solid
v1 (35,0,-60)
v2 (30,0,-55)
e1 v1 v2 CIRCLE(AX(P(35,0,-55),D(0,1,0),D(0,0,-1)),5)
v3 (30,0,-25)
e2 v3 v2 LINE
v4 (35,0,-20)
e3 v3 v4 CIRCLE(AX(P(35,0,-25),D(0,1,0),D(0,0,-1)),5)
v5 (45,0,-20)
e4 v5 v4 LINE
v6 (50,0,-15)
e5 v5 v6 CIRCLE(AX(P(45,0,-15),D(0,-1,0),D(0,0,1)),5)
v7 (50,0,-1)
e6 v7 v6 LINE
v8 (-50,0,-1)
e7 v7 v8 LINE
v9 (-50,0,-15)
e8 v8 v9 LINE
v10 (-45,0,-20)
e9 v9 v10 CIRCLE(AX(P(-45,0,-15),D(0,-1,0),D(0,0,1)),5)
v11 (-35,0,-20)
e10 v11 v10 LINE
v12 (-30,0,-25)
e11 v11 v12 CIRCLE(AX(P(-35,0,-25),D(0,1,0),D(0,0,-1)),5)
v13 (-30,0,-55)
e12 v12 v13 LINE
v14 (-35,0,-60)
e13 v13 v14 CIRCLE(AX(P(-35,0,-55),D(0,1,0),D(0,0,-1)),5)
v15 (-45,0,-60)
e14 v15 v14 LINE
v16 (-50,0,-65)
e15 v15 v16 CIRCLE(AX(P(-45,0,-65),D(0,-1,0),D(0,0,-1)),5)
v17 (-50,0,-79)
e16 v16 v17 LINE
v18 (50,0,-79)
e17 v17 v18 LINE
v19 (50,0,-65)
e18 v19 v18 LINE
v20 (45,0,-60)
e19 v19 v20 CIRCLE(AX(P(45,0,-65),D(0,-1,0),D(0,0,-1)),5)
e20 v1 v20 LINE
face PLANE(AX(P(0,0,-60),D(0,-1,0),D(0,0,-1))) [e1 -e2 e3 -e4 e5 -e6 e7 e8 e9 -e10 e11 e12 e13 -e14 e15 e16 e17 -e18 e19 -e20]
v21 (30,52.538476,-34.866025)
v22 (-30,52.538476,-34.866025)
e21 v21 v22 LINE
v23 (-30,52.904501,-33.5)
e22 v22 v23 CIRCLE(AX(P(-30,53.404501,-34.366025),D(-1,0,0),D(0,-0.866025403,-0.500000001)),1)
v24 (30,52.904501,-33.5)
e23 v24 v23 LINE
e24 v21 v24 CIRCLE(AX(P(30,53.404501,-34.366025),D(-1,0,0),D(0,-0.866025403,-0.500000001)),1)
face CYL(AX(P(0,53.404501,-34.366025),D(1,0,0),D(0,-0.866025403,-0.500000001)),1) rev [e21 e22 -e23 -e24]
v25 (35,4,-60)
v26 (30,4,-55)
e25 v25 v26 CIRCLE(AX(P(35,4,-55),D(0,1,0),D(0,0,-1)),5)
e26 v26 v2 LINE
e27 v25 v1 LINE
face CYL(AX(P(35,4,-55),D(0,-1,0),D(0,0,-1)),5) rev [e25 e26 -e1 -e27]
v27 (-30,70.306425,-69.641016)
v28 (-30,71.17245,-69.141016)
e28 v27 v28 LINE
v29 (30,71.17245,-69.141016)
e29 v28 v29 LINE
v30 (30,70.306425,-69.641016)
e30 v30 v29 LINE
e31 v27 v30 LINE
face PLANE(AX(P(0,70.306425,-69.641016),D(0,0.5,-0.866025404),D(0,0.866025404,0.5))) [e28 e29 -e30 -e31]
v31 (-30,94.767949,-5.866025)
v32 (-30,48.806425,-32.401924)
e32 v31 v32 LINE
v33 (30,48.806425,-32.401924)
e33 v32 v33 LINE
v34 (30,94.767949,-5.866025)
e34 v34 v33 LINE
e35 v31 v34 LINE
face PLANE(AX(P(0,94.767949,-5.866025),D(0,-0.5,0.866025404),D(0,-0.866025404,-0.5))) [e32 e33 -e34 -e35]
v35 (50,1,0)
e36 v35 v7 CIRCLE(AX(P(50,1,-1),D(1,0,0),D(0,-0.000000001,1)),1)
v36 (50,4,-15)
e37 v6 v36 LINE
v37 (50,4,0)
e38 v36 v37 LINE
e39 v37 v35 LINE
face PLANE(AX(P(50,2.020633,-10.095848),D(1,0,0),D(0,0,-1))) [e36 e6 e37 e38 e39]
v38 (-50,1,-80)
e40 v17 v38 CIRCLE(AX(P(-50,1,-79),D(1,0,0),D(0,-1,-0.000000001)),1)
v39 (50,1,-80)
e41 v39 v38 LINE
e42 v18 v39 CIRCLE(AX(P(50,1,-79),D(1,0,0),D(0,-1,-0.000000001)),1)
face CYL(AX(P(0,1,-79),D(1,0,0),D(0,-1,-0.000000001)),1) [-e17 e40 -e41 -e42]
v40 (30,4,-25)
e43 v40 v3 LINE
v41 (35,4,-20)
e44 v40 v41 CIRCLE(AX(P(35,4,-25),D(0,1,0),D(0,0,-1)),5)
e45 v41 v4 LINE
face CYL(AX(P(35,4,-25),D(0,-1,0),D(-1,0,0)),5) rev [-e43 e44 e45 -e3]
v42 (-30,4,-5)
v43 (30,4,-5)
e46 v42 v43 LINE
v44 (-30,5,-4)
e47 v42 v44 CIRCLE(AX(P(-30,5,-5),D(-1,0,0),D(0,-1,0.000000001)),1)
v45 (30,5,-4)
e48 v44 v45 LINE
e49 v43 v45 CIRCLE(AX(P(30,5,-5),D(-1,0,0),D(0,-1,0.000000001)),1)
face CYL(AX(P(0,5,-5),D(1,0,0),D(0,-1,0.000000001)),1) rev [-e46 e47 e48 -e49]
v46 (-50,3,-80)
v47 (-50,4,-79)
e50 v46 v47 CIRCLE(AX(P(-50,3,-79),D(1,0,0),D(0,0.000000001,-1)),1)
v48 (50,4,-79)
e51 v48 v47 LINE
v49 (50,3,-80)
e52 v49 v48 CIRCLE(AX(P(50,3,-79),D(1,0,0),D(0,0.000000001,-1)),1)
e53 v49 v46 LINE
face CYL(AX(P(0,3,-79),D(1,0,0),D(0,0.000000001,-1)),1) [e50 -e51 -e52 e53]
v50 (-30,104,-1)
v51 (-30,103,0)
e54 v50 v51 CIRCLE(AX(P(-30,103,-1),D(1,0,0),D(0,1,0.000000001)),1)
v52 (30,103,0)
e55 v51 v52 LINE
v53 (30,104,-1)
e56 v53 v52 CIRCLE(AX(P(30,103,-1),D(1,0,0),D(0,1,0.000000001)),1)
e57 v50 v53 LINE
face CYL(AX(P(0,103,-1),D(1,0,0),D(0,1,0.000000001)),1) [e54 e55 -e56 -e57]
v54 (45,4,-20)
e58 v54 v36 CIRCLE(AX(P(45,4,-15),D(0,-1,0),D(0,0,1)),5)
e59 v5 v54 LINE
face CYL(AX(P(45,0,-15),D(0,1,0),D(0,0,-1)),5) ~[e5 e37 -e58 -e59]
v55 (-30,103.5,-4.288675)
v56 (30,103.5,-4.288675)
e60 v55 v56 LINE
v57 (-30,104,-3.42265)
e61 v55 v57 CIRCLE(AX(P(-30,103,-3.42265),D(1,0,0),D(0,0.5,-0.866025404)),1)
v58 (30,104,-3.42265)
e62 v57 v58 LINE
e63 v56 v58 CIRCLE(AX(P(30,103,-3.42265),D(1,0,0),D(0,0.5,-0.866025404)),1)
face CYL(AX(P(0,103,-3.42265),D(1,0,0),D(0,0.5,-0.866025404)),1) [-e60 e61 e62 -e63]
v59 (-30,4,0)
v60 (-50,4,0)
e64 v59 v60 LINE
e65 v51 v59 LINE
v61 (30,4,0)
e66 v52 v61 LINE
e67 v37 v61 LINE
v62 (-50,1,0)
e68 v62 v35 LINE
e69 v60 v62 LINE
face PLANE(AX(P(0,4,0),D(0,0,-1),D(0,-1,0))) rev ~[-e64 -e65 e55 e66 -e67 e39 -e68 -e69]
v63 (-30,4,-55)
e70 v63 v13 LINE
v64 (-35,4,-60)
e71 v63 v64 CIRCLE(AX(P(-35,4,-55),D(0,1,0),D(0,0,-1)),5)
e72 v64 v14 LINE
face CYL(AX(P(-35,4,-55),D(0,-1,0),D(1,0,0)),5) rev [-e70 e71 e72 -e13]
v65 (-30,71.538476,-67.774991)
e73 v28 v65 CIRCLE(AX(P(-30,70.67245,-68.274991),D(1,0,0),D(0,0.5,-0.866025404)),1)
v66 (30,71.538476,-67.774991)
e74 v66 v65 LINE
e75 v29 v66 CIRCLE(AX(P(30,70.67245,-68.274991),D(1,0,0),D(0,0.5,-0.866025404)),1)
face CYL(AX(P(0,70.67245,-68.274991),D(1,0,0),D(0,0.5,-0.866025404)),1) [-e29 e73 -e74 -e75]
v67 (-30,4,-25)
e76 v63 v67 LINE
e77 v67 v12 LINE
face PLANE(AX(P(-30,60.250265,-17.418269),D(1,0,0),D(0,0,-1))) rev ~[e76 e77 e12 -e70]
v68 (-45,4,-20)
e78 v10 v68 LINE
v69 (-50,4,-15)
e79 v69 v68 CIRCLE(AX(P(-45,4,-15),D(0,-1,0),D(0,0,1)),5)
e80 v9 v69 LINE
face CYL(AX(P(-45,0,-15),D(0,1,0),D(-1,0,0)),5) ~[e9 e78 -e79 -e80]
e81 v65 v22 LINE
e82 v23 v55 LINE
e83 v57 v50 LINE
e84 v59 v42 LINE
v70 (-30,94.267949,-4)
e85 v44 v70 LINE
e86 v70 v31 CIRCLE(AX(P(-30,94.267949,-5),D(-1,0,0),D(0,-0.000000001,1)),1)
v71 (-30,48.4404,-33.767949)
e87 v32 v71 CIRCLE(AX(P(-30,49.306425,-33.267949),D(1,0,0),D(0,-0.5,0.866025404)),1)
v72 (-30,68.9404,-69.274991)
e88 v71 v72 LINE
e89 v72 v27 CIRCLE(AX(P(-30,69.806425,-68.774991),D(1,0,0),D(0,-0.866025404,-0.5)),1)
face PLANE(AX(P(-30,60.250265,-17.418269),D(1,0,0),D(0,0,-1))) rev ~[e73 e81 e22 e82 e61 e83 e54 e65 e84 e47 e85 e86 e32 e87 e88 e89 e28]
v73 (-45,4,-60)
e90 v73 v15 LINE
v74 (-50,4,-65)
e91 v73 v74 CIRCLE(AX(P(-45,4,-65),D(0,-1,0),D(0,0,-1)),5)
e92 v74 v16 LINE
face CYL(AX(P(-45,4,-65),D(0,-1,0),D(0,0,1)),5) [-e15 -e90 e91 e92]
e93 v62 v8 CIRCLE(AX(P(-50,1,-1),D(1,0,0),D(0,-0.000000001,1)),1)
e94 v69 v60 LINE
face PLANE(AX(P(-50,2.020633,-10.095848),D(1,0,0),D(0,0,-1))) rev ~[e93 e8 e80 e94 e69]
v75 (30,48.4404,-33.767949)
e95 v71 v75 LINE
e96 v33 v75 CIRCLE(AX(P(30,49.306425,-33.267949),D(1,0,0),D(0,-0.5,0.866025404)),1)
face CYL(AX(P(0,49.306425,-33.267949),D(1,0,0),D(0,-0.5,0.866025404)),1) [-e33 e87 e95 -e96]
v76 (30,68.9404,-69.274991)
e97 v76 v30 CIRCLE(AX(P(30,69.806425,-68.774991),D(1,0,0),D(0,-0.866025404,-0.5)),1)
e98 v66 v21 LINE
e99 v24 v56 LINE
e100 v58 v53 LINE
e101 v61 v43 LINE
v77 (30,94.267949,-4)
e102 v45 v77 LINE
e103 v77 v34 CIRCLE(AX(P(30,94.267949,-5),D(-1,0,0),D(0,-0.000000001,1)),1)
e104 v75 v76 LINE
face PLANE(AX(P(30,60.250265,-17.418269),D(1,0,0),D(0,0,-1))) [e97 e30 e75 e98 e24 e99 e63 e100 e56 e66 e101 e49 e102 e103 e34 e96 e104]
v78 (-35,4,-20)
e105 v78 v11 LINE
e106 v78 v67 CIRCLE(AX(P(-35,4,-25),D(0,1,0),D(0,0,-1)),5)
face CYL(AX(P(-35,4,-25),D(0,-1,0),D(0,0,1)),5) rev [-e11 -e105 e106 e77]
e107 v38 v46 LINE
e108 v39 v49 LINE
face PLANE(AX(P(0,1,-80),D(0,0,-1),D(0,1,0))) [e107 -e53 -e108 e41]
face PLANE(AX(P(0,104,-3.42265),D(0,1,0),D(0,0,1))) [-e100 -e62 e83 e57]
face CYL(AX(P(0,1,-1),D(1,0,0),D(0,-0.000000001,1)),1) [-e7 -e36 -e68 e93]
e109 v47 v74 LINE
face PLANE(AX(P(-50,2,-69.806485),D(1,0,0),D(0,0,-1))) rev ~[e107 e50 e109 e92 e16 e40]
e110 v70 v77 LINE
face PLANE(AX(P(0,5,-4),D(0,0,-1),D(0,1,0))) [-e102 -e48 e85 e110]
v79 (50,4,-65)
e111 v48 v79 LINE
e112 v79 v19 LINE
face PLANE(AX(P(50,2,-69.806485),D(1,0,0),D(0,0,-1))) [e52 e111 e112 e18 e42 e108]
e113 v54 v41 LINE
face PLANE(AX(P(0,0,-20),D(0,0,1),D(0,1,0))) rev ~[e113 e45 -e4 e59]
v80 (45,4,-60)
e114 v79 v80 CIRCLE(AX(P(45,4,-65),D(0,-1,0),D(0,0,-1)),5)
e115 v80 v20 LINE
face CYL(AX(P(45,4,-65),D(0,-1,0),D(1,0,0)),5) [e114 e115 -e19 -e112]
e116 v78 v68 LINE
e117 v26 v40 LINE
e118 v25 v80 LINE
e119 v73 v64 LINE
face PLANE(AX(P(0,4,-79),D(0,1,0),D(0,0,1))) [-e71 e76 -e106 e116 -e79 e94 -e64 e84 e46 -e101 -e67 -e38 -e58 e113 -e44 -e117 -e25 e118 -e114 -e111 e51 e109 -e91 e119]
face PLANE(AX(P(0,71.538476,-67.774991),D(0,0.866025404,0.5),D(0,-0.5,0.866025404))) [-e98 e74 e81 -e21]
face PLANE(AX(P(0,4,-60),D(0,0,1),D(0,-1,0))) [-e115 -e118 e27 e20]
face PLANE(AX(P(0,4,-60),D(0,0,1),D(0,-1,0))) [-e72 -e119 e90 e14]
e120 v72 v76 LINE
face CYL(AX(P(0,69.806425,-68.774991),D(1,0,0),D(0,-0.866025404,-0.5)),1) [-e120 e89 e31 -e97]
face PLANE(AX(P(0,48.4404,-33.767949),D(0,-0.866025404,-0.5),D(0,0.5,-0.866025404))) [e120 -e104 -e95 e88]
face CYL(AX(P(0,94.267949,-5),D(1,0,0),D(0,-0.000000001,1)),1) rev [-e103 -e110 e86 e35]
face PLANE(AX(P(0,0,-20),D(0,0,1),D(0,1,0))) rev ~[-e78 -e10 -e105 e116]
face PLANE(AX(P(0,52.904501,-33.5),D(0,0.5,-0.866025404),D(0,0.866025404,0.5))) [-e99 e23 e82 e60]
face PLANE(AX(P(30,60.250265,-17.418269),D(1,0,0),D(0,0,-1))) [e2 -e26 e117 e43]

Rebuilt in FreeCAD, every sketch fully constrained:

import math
import FreeCAD as App
import Part
import Sketcher

V = App.Vector
Q = App.Units.Quantity


def edges_at(feature, points):
    """Names of the edges that pass closest to the given points."""
    edges = feature.Shape.Edges
    near = lambda p: min(range(len(edges)), key=lambda i: edges[i].distToShape(Part.Vertex(*p))[0])
    return sorted({f"Edge{near(p) + 1}" for p in points})

doc = App.newDocument("Part")
body = doc.addObject("PartDesign::Body", "Body")

sketch1 = body.newObject("Sketcher::SketchObject", "Sketch")
sketch1.AttachmentSupport = (doc.getObject("YZ_Plane"), [""])
sketch1.MapMode = "FlatFace"
sketch1.addGeometry([
    Part.LineSegment(V(52.904501, -33.5, 0), V(103.5, -4.288675, 0)),
    Part.ArcOfCircle(Part.Circle(V(103, -3.42265, 0), V(0, 0, 1), 1), math.radians(-60), math.radians(0)),
    Part.LineSegment(V(104, -3.42265, 0), V(104, -1, 0)),
    Part.ArcOfCircle(Part.Circle(V(103, -1, 0), V(0, 0, 1), 1), math.radians(0), math.radians(90)),
    Part.LineSegment(V(103, 0, 0), V(1, 0, 0)),
    Part.ArcOfCircle(Part.Circle(V(1, -1, 0), V(0, 0, 1), 1), math.radians(90), math.radians(180)),
    Part.LineSegment(V(0, -1, 0), V(0, -79, 0)),
    Part.ArcOfCircle(Part.Circle(V(1, -79, 0), V(0, 0, 1), 1), math.radians(-180), math.radians(-90)),
    Part.LineSegment(V(1, -80, 0), V(3, -80, 0)),
    Part.ArcOfCircle(Part.Circle(V(3, -79, 0), V(0, 0, 1), 1), math.radians(-90), math.radians(0)),
    Part.LineSegment(V(4, -79, 0), V(4, -5, 0)),
    Part.ArcOfCircle(Part.Circle(V(5, -5, 0), V(0, 0, 1), 1), math.radians(90), math.radians(180)),
    Part.LineSegment(V(5, -4, 0), V(94.267949, -4, 0)),
    Part.ArcOfCircle(Part.Circle(V(94.267949, -5, 0), V(0, 0, 1), 1), math.radians(-60), math.radians(90)),
    Part.LineSegment(V(94.767949, -5.866025, 0), V(48.806425, -32.401924, 0)),
    Part.ArcOfCircle(Part.Circle(V(49.306425, -33.267949, 0), V(0, 0, 1), 1), math.radians(120), math.radians(210)),
    Part.LineSegment(V(48.4404, -33.767949, 0), V(68.9404, -69.274991, 0)),
    Part.ArcOfCircle(Part.Circle(V(69.806425, -68.774991, 0), V(0, 0, 1), 1), math.radians(-150), math.radians(-60)),
    Part.LineSegment(V(70.306425, -69.641016, 0), V(71.17245, -69.141016, 0)),
    Part.ArcOfCircle(Part.Circle(V(70.67245, -68.274991, 0), V(0, 0, 1), 1), math.radians(-60), math.radians(30)),
    Part.LineSegment(V(71.538476, -67.774991, 0), V(52.538476, -34.866025, 0)),
    Part.ArcOfCircle(Part.Circle(V(53.404501, -34.366025, 0), V(0, 0, 1), 1), math.radians(120), math.radians(210)),
], False)
sketch1.addConstraint([
    Sketcher.Constraint("Tangent", 0, 2, 1, 1),
    Sketcher.Constraint("Tangent", 1, 2, 2, 1),
    Sketcher.Constraint("Tangent", 2, 2, 3, 1),
    Sketcher.Constraint("Tangent", 3, 2, 4, 1),
    Sketcher.Constraint("Tangent", 4, 2, 5, 1),
    Sketcher.Constraint("Tangent", 5, 2, 6, 1),
    Sketcher.Constraint("Tangent", 6, 2, 7, 1),
    Sketcher.Constraint("Tangent", 7, 2, 8, 1),
    Sketcher.Constraint("Tangent", 8, 2, 9, 1),
    Sketcher.Constraint("Tangent", 9, 2, 10, 1),
    Sketcher.Constraint("Tangent", 10, 2, 11, 2),
    Sketcher.Constraint("Tangent", 11, 1, 12, 1),
    Sketcher.Constraint("Tangent", 12, 2, 13, 2),
    Sketcher.Constraint("Tangent", 13, 1, 14, 1),
    Sketcher.Constraint("Tangent", 14, 2, 15, 1),
    Sketcher.Constraint("Tangent", 15, 2, 16, 1),
    Sketcher.Constraint("Tangent", 16, 2, 17, 1),
    Sketcher.Constraint("Tangent", 17, 2, 18, 1),
    Sketcher.Constraint("Tangent", 18, 2, 19, 1),
    Sketcher.Constraint("Tangent", 19, 2, 20, 1),
    Sketcher.Constraint("Tangent", 20, 2, 21, 2),
    Sketcher.Constraint("Tangent", 21, 1, 0, 1),
    Sketcher.Constraint("Vertical", 2),
    Sketcher.Constraint("Horizontal", 4),
    Sketcher.Constraint("Vertical", 6),
    Sketcher.Constraint("Horizontal", 8),
    Sketcher.Constraint("Vertical", 10),
    Sketcher.Constraint("Horizontal", 12),
    Sketcher.Constraint("Equal", 1, 3),
    Sketcher.Constraint("Equal", 3, 5),
    Sketcher.Constraint("Equal", 5, 7),
    Sketcher.Constraint("Equal", 7, 9),
    Sketcher.Constraint("Equal", 9, 11),
    Sketcher.Constraint("Equal", 11, 13),
    Sketcher.Constraint("Equal", 13, 15),
    Sketcher.Constraint("Equal", 15, 17),
    Sketcher.Constraint("Equal", 17, 19),
    Sketcher.Constraint("Equal", 19, 21),
    Sketcher.Constraint("PointOnObject", 3, 2, -1),
    Sketcher.Constraint("PointOnObject", 5, 2, -2),
    Sketcher.Constraint("Parallel", 0, 14),
    Sketcher.Constraint("Perpendicular", 14, 16),
    Sketcher.Constraint("Perpendicular", 16, 18),
    Sketcher.Constraint("Perpendicular", 18, 20),
    Sketcher.Constraint("Radius", 1, 1.0),
    Sketcher.Constraint("DistanceX", 4, 2, 4, 1, 102.0),
    Sketcher.Constraint("DistanceX", 8, 1, 8, 2, 2.0),
    Sketcher.Constraint("DistanceY", 6, 2, 6, 1, 78.0),
    Sketcher.Constraint("DistanceY", 10, 1, 10, 2, 74.0),
    Sketcher.Constraint("Angle", 0, Q("30 deg")),
    Sketcher.Constraint("Distance", 16, 41.0),
    Sketcher.Constraint("Distance", 18, 1.0),
    Sketcher.Constraint("Distance", 20, 38.0),
    Sketcher.Constraint("DistanceY", 21, 1, -1, 1, 33.5),
    Sketcher.Constraint("DistanceX", 12, 1, 12, 2, 89.267949),
])
pad1 = body.newObject("PartDesign::Pad", "Pad")
pad1.Profile = sketch1
pad1.Length = 60
pad1.Midplane = True

sketch2 = body.newObject("Sketcher::SketchObject", "Sketch001")
sketch2.AttachmentSupport = (doc.getObject("YZ_Plane"), [""])
sketch2.MapMode = "FlatFace"
sketch2.addGeometry([
    Part.LineSegment(V(4, 0, 0), V(1, 0, 0)),
    Part.ArcOfCircle(Part.Circle(V(1, -1, 0), V(0, 0, 1), 1), math.radians(90), math.radians(180)),
    Part.LineSegment(V(0, -1, 0), V(0, -20, 0)),
    Part.LineSegment(V(0, -20, 0), V(4, -20, 0)),
    Part.LineSegment(V(4, -20, 0), V(4, 0, 0)),
    Part.LineSegment(V(4, -79, 0), V(4, -60, 0)),
    Part.LineSegment(V(4, -60, 0), V(0, -60, 0)),
    Part.LineSegment(V(0, -60, 0), V(0, -79, 0)),
    Part.ArcOfCircle(Part.Circle(V(1, -79, 0), V(0, 0, 1), 1), math.radians(-180), math.radians(-90)),
    Part.LineSegment(V(1, -80, 0), V(3, -80, 0)),
    Part.ArcOfCircle(Part.Circle(V(3, -79, 0), V(0, 0, 1), 1), math.radians(-90), math.radians(0)),
], False)
sketch2.addConstraint([
    Sketcher.Constraint("Tangent", 0, 2, 1, 1),
    Sketcher.Constraint("Tangent", 1, 2, 2, 1),
    Sketcher.Constraint("Coincident", 2, 2, 3, 1),
    Sketcher.Constraint("Coincident", 3, 2, 4, 1),
    Sketcher.Constraint("Coincident", 4, 2, 0, 1),
    Sketcher.Constraint("Coincident", 5, 2, 6, 1),
    Sketcher.Constraint("Coincident", 6, 2, 7, 1),
    Sketcher.Constraint("Tangent", 7, 2, 8, 1),
    Sketcher.Constraint("Tangent", 8, 2, 9, 1),
    Sketcher.Constraint("Tangent", 9, 2, 10, 1),
    Sketcher.Constraint("Tangent", 10, 2, 5, 1),
    Sketcher.Constraint("Horizontal", 0),
    Sketcher.Constraint("Vertical", 2),
    Sketcher.Constraint("Horizontal", 3),
    Sketcher.Constraint("Vertical", 4),
    Sketcher.Constraint("Vertical", 5),
    Sketcher.Constraint("Horizontal", 6),
    Sketcher.Constraint("Vertical", 7),
    Sketcher.Constraint("Horizontal", 9),
    Sketcher.Constraint("Equal", 1, 8),
    Sketcher.Constraint("Equal", 8, 10),
    Sketcher.Constraint("PointOnObject", 0, 2, -1),
    Sketcher.Constraint("PointOnObject", 1, 2, -2),
    Sketcher.Constraint("PointOnObject", 6, 2, -2),
    Sketcher.Constraint("Vertical", 4, 2, 5, 2),
    Sketcher.Constraint("Equal", 2, 5),
    Sketcher.Constraint("Radius", 1, 1.0),
    Sketcher.Constraint("DistanceX", 0, 2, 0, 1, 3.0),
    Sketcher.Constraint("DistanceY", 2, 2, 2, 1, 19.0),
    Sketcher.Constraint("DistanceY", 8, 3, -1, 1, 79.0),
])
pad2 = body.newObject("PartDesign::Pad", "Pad001")
pad2.Profile = sketch2
pad2.Length = 100
pad2.Midplane = True
doc.recompute()

fillet = body.newObject("PartDesign::Fillet", "Fillet")
fillet.Base = (pad2, edges_at(pad2, [
    (30, 2, -60),
    (-30, 2, -60),
    (-50, 2, -60),
    (50, 2, -60),
    (-30, 2, -20),
    (30, 2, -20),
    (50, 2, -20),
    (-50, 2, -20),
]))
fillet.Radius = 5

doc.recompute()
